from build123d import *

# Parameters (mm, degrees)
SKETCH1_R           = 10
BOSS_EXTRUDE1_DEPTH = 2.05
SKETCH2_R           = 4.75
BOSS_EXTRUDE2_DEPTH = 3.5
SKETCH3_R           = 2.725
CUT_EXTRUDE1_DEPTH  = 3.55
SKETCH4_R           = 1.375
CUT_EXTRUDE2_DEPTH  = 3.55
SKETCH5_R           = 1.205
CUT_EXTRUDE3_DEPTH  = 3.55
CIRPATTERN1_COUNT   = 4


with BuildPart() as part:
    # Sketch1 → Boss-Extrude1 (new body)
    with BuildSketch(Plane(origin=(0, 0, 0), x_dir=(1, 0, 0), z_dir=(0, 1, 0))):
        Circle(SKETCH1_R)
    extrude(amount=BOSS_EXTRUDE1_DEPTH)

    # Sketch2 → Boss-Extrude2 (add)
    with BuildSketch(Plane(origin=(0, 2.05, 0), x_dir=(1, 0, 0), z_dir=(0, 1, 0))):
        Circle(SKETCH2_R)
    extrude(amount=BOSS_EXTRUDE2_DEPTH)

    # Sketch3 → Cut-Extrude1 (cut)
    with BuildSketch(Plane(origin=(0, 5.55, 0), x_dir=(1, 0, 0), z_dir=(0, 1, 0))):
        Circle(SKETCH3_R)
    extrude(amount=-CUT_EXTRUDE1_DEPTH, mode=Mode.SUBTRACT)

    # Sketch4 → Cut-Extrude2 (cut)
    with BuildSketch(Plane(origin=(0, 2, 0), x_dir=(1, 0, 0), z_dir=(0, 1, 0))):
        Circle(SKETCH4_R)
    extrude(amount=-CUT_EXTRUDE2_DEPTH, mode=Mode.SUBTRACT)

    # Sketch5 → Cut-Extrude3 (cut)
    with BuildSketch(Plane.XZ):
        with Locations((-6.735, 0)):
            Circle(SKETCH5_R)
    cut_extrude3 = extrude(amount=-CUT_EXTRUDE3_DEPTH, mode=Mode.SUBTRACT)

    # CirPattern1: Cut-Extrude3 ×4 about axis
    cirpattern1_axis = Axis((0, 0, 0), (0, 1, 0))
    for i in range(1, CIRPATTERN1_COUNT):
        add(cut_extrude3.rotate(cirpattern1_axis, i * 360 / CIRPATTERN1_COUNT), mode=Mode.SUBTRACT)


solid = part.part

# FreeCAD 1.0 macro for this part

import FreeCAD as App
import Part
import Sketcher

V = App.Vector
Q = App.Units.Quantity

doc = App.newDocument("Part")
body = doc.addObject("PartDesign::Body", "Body")

# Sketch on XZ plane
sketch1 = body.newObject("Sketcher::SketchObject", "Sketch")
sketch1.AttachmentSupport = (doc.getObject("XZ_Plane"), [""])
sketch1.MapMode = "FlatFace"
sketch1.addGeometry(Part.Circle(V(0, 0, 0), V(0, 0, 1), 10), False)
sketch1.addConstraint([
    Sketcher.Constraint("Coincident", 0, 3, -1, 1),
    Sketcher.Constraint("Diameter", 0, Q("20 mm")),
])
pad1 = body.newObject("PartDesign::Pad", "Pad")
pad1.Profile = sketch1
pad1.Length = 2.05
pad1.Reversed = True

# Sketch on XZ plane
sketch2 = body.newObject("Sketcher::SketchObject", "Sketch001")
sketch2.AttachmentSupport = (doc.getObject("XZ_Plane"), [""])
sketch2.MapMode = "FlatFace"
sketch2.AttachmentOffset = App.Placement(V(0, 0, -2.05), App.Rotation())
sketch2.addGeometry(Part.Circle(V(0, 0, 0), V(0, 0, 1), 4.75), False)
sketch2.addConstraint([
    Sketcher.Constraint("Coincident", 0, 3, -1, 1),
    Sketcher.Constraint("Diameter", 0, Q("9.5 mm")),
])
pad2 = body.newObject("PartDesign::Pad", "Pad001")
pad2.Profile = sketch2
pad2.Length = 3.5
pad2.Reversed = True

# Sketch on XZ plane
sketch3 = body.newObject("Sketcher::SketchObject", "Sketch002")
sketch3.AttachmentSupport = (doc.getObject("XZ_Plane"), [""])
sketch3.MapMode = "FlatFace"
sketch3.AttachmentOffset = App.Placement(V(0, 0, -5.55), App.Rotation())
sketch3.addGeometry(Part.Circle(V(0, 0, 0), V(0, 0, 1), 2.725), False)
sketch3.addConstraint([
    Sketcher.Constraint("Coincident", 0, 3, -1, 1),
    Sketcher.Constraint("Diameter", 0, Q("5.45 mm")),
])
pocket1 = body.newObject("PartDesign::Pocket", "Pocket")
pocket1.Profile = sketch3
pocket1.Length = 3.55
pocket1.Reversed = True

# Sketch on XZ plane
sketch4 = body.newObject("Sketcher::SketchObject", "Sketch003")
sketch4.AttachmentSupport = (doc.getObject("XZ_Plane"), [""])
sketch4.MapMode = "FlatFace"
sketch4.AttachmentOffset = App.Placement(V(0, 0, -2), App.Rotation())
sketch4.addGeometry(Part.Circle(V(0, 0, 0), V(0, 0, 1), 1.375), False)
sketch4.addConstraint([
    Sketcher.Constraint("Coincident", 0, 3, -1, 1),
    Sketcher.Constraint("Diameter", 0, Q("2.75 mm")),
])
pocket2 = body.newObject("PartDesign::Pocket", "Pocket001")
pocket2.Profile = sketch4
pocket2.Length = 3.55
pocket2.Reversed = True

# Sketch on XZ plane
sketch5 = body.newObject("Sketcher::SketchObject", "Sketch004")
sketch5.AttachmentSupport = (doc.getObject("XZ_Plane"), [""])
sketch5.MapMode = "FlatFace"
sketch5.addGeometry(Part.Circle(V(-6.735, 0, 0), V(0, 0, 1), 1.205), False)
sketch5.addConstraint([
    Sketcher.Constraint("PointOnObject", 0, 3, -1),
    Sketcher.Constraint("Diameter", 0, Q("2.41 mm")),
    Sketcher.Constraint("DistanceX", 0, 3, -1, 1, Q("6.735 mm")),
])
pocket3 = body.newObject("PartDesign::Pocket", "Pocket002")
pocket3.Profile = sketch5
pocket3.Length = 3.55
doc.recompute()

polarpattern = body.newObject("PartDesign::PolarPattern", "PolarPattern")
polarpattern.Originals = [pocket3]
polarpattern.Axis = (doc.getObject("Y_Axis"), [""])
polarpattern.Angle = 360
polarpattern.Occurrences = 4
body.Tip = polarpattern

doc.recompute()
